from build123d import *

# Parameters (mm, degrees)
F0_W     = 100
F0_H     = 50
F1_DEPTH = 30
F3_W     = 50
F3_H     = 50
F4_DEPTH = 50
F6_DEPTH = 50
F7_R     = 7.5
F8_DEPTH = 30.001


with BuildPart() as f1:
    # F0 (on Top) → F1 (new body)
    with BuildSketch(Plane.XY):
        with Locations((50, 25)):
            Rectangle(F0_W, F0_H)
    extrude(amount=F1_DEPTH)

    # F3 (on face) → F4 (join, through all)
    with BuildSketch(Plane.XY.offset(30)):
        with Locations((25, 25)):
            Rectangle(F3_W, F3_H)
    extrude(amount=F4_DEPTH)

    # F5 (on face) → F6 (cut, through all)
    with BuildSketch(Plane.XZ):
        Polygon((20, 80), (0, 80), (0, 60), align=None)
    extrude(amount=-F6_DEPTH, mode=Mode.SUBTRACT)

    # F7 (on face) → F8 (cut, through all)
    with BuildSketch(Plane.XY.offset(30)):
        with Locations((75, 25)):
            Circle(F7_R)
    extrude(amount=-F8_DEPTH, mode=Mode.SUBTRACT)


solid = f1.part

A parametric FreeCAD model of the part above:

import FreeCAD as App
import Part
import Sketcher
Q = App.Units.Quantity

doc = App.newDocument("Part")
params = doc.addObject("Spreadsheet::Sheet", "Params")
for row, (alias, value) in enumerate([
    ("sketch1_width", "100 mm"),
    ("sketch1_height", "50 mm"),
    ("pad1_length", "30 mm"),
    ("sketch2_width", "50 mm"),
    ("pad2_length", "50 mm"),
    ("sketch3_width", "20 mm"),
    ("sketch4_diameter", "15 mm"),
], start=1):
    params.set(f"A{row}", alias)
    params.set(f"B{row}", "=" + value)
    params.setAlias(f"B{row}", alias)

body = doc.addObject("PartDesign::Body", "Body")

# Sketch on XY plane
sketch1 = doc.addObject("Sketcher::SketchObject", "Sketch")
body.addObject(sketch1)
sketch1.AttachmentSupport = (doc.XY_Plane, [""])
sketch1.MapMode = "FlatFace"
sketch1.addGeometry([
    Part.LineSegment(App.Vector(0, 50, 0), App.Vector(0, 0, 0)),
    Part.LineSegment(App.Vector(0, 0, 0), App.Vector(100, 0, 0)),
    Part.LineSegment(App.Vector(100, 0, 0), App.Vector(100, 50, 0)),
    Part.LineSegment(App.Vector(100, 50, 0), App.Vector(0, 50, 0)),
], False)
sketch1.addConstraint([
    Sketcher.Constraint("Coincident", 0, 2, 1, 1),
    Sketcher.Constraint("Coincident", 1, 2, 2, 1),
    Sketcher.Constraint("Coincident", 2, 2, 3, 1),
    Sketcher.Constraint("Coincident", 3, 2, 0, 1),
    Sketcher.Constraint("Vertical", 0),
    Sketcher.Constraint("Horizontal", 1),
    Sketcher.Constraint("Vertical", 2),
    Sketcher.Constraint("Horizontal", 3),
    Sketcher.Constraint("Coincident", 0, 2, -1, 1),
    Sketcher.Constraint("DistanceX", 1, 1, 1, 2, Q("100 mm")),
    Sketcher.Constraint("DistanceY", 0, 2, 0, 1, Q("50 mm")),
])
sketch1.setExpression("Constraints[9]", "Params.sketch1_width")
sketch1.setExpression("Constraints[10]", "Params.sketch1_height")
pad1 = doc.addObject("PartDesign::Pad", "Pad")
body.addObject(pad1)
pad1.Profile = sketch1
pad1.setExpression("Length", "Params.pad1_length")

# Sketch on XY plane
sketch2 = doc.addObject("Sketcher::SketchObject", "Sketch001")
body.addObject(sketch2)
sketch2.AttachmentSupport = (doc.XY_Plane, [""])
sketch2.MapMode = "FlatFace"
sketch2.AttachmentOffset = App.Placement(App.Vector(0, 0, 30), App.Rotation())
sketch2.addGeometry([
    Part.LineSegment(App.Vector(0, 50, 0), App.Vector(0, 0, 0)),
    Part.LineSegment(App.Vector(0, 0, 0), App.Vector(50, 0, 0)),
    Part.LineSegment(App.Vector(50, 0, 0), App.Vector(50, 50, 0)),
    Part.LineSegment(App.Vector(50, 50, 0), App.Vector(0, 50, 0)),
], False)
sketch2.addConstraint([
    Sketcher.Constraint("Coincident", 0, 2, 1, 1),
    Sketcher.Constraint("Coincident", 1, 2, 2, 1),
    Sketcher.Constraint("Coincident", 2, 2, 3, 1),
    Sketcher.Constraint("Coincident", 3, 2, 0, 1),
    Sketcher.Constraint("Vertical", 0),
    Sketcher.Constraint("Horizontal", 1),
    Sketcher.Constraint("Vertical", 2),
    Sketcher.Constraint("Horizontal", 3),
    Sketcher.Constraint("Coincident", 0, 2, -1, 1),
    Sketcher.Constraint("Equal", 3, 0),
    Sketcher.Constraint("DistanceX", 1, 1, 1, 2, Q("50 mm")),
])
sketch2.setExpression("Constraints[10]", "Params.sketch2_width")
pad2 = doc.addObject("PartDesign::Pad", "Pad001")
body.addObject(pad2)
pad2.Profile = sketch2
pad2.setExpression("Length", "Params.pad2_length")

# Sketch on XZ plane
sketch3 = doc.addObject("Sketcher::SketchObject", "Sketch002")
body.addObject(sketch3)
sketch3.AttachmentSupport = (doc.XZ_Plane, [""])
sketch3.MapMode = "FlatFace"
sketch3.addGeometry([
    Part.LineSegment(App.Vector(20, 80, 0), App.Vector(0, 80, 0)),
    Part.LineSegment(App.Vector(0, 80, 0), App.Vector(0, 60, 0)),
    Part.LineSegment(App.Vector(0, 60, 0), App.Vector(20, 80, 0)),
], False)
sketch3.addConstraint([
    Sketcher.Constraint("Coincident", 0, 2, 1, 1),
    Sketcher.Constraint("Coincident", 1, 2, 2, 1),
    Sketcher.Constraint("Coincident", 2, 2, 0, 1),
    Sketcher.Constraint("Horizontal", 0),
    Sketcher.Constraint("Vertical", 1),
    Sketcher.Constraint("PointOnObject", 0, 2, -2),
    Sketcher.Constraint("Equal", 0, 1),
    Sketcher.Constraint("DistanceX", 0, 2, 0, 1, Q("20 mm")),
    Sketcher.Constraint("DistanceY", -1, 1, 0, 2, Q("80 mm")),
])
sketch3.setExpression("Constraints[7]", "Params.sketch3_width")
pocket1 = doc.addObject("PartDesign::Pocket", "Pocket")
body.addObject(pocket1)
pocket1.Profile = sketch3
pocket1.Type = "ThroughAll"

# Sketch on XY plane
sketch4 = doc.addObject("Sketcher::SketchObject", "Sketch003")
body.addObject(sketch4)
sketch4.AttachmentSupport = (doc.XY_Plane, [""])
sketch4.MapMode = "FlatFace"
sketch4.AttachmentOffset = App.Placement(App.Vector(0, 0, 30), App.Rotation())
sketch4.addGeometry(Part.Circle(App.Vector(75, 25, 0), App.Vector(0, 0, 1), 8), False)
sketch4.addConstraint([
    Sketcher.Constraint("Diameter", 0, Q("15 mm")),
    Sketcher.Constraint("DistanceX", -1, 1, 0, 3, Q("75 mm")),
    Sketcher.Constraint("DistanceY", -1, 1, 0, 3, Q("25 mm")),
])
sketch4.setExpression("Constraints[0]", "Params.sketch4_diameter")
pocket2 = doc.addObject("PartDesign::Pocket", "Pocket001")
body.addObject(pocket2)
pocket2.Profile = sketch4
pocket2.Type = "ThroughAll"

doc.recompute()
